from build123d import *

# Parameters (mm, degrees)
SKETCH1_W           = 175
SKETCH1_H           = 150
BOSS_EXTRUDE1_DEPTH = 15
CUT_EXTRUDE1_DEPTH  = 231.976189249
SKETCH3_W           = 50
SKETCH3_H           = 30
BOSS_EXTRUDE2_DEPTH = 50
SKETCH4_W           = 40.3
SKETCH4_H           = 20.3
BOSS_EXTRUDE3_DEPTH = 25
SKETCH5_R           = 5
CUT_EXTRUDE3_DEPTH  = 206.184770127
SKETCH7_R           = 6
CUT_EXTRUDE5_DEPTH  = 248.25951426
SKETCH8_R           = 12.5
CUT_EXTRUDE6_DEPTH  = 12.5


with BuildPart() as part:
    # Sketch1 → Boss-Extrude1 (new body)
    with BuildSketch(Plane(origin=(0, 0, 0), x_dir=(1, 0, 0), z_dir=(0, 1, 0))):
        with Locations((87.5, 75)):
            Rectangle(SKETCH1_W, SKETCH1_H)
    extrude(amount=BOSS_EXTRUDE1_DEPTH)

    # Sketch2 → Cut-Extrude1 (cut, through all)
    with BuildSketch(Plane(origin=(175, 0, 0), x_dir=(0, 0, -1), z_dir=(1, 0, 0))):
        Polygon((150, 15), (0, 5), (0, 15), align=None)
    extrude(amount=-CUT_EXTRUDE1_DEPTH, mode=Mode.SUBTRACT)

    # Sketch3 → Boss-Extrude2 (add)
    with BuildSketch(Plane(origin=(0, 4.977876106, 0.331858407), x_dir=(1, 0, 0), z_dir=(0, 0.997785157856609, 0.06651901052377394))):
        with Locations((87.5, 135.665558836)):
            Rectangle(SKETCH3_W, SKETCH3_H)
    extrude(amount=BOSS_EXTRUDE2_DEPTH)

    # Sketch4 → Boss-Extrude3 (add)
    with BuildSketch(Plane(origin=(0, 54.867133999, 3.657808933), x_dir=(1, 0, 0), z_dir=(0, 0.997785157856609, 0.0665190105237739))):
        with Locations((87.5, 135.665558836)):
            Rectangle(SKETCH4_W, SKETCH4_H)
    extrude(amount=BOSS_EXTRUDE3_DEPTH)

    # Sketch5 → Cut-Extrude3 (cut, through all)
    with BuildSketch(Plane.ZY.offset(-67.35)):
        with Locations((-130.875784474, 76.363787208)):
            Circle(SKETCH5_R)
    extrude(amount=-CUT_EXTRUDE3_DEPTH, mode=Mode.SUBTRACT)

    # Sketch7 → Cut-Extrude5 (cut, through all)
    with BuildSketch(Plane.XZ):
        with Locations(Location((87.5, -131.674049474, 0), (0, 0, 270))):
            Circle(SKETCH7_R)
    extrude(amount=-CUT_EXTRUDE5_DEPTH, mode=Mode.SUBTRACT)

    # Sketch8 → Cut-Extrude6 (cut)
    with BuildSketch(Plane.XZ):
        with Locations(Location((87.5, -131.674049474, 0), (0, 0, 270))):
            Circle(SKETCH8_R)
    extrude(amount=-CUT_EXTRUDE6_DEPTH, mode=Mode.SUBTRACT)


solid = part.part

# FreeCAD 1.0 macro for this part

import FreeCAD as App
import Part
import Sketcher
Q = App.Units.Quantity


def add_polygon(sketch, points):
    """Adds a closed chain of lines whose ends are joined by coincident constraints."""
    first, n = sketch.GeometryCount, len(points)
    for a, b in zip(points, points[1:] + points[:1]):
        sketch.addGeometry(Part.LineSegment(App.Vector(*a, 0), App.Vector(*b, 0)), False)
    for i in range(n):
        sketch.addConstraint(Sketcher.Constraint("Coincident", first + i, 2, first + (i + 1) % n, 1))

doc = App.newDocument("Part")
body = doc.addObject("PartDesign::Body", "Body")

sketch1 = body.newObject("Sketcher::SketchObject", "Sketch")
sketch1.AttachmentSupport = (doc.getObject("XZ_Plane"), [""])
sketch1.MapMode = "FlatFace"
add_polygon(sketch1, [(0, -150), (0, 0), (175, 0), (175, -150)])
sketch1.addConstraint(Sketcher.Constraint("Vertical", 0))
sketch1.addConstraint(Sketcher.Constraint("Horizontal", 1))
sketch1.addConstraint(Sketcher.Constraint("Vertical", 2))
sketch1.addConstraint(Sketcher.Constraint("Horizontal", 3))
sketch1.addConstraint(Sketcher.Constraint("Coincident", 0, 2, -1, 1))
sketch1.addConstraint(Sketcher.Constraint("DistanceX", 1, 1, 1, 2, Q("175 mm")))
sketch1.addConstraint(Sketcher.Constraint("DistanceY", 0, 1, 0, 2, Q("150 mm")))
pad1 = body.newObject("PartDesign::Pad", "Pad")
pad1.Profile = sketch1
pad1.Length = 15
pad1.Reversed = True

sketch2 = body.newObject("Sketcher::SketchObject", "Sketch001")
sketch2.AttachmentSupport = (doc.getObject("YZ_Plane"), [""])
sketch2.MapMode = "FlatFace"
sketch2.AttachmentOffset = App.Placement(App.Vector(0, 0, 175), App.Rotation())
add_polygon(sketch2, [(5, 0), (15, -150), (15, 0)])
sketch2.addConstraint(Sketcher.Constraint("Vertical", 1))
sketch2.addConstraint(Sketcher.Constraint("Horizontal", 2))
sketch2.addConstraint(Sketcher.Constraint("PointOnObject", 1, 2, -1))
sketch2.addConstraint(Sketcher.Constraint("DistanceX", 2, 2, 2, 1, Q("10 mm")))
sketch2.addConstraint(Sketcher.Constraint("DistanceY", 1, 1, 1, 2, Q("150 mm")))
sketch2.addConstraint(Sketcher.Constraint("DistanceX", -1, 1, 0, 2, Q("15 mm")))
pocket1 = body.newObject("PartDesign::Pocket", "Pocket")
pocket1.Profile = sketch2
pocket1.Type = "ThroughAll"

sketch3 = body.newObject("Sketcher::SketchObject", "Sketch002")
sketch3.Placement = App.Placement(App.Vector(0, 4.977876, 0.331858), App.Rotation(App.Vector(1, 0, 0), App.Vector(0, 0.066519011, -0.997785158), App.Vector(0, 0.997785158, 0.066519011), "ZXY"))
add_polygon(sketch3, [(62.5, 150.665559), (62.5, 120.665559), (112.5, 120.665559), (112.5, 150.665559)])
sketch3.addConstraint(Sketcher.Constraint("Vertical", 0))
sketch3.addConstraint(Sketcher.Constraint("Horizontal", 1))
sketch3.addConstraint(Sketcher.Constraint("Vertical", 2))
sketch3.addConstraint(Sketcher.Constraint("Horizontal", 3))
sketch3.addConstraint(Sketcher.Constraint("DistanceX", 1, 1, 1, 2, Q("50 mm")))
sketch3.addConstraint(Sketcher.Constraint("DistanceY", 0, 2, 0, 1, Q("30 mm")))
sketch3.addConstraint(Sketcher.Constraint("DistanceX", -1, 1, 0, 2, Q("62.5 mm")))
sketch3.addConstraint(Sketcher.Constraint("DistanceY", -1, 1, 0, 2, Q("120.665559 mm")))
pad2 = body.newObject("PartDesign::Pad", "Pad001")
pad2.Profile = sketch3
pad2.Length = 50

sketch4 = body.newObject("Sketcher::SketchObject", "Sketch003")
sketch4.Placement = App.Placement(App.Vector(0, 54.867134, 3.657809), App.Rotation(App.Vector(1, 0, 0), App.Vector(0, 0.066519011, -0.997785158), App.Vector(0, 0.997785158, 0.066519011), "ZXY"))
add_polygon(sketch4, [(67.35, 145.815559), (67.35, 125.515559), (107.65, 125.515559), (107.65, 145.815559)])
sketch4.addConstraint(Sketcher.Constraint("Vertical", 0))
sketch4.addConstraint(Sketcher.Constraint("Horizontal", 1))
sketch4.addConstraint(Sketcher.Constraint("Vertical", 2))
sketch4.addConstraint(Sketcher.Constraint("Horizontal", 3))
sketch4.addConstraint(Sketcher.Constraint("DistanceX", 1, 1, 1, 2, Q("40.3 mm")))
sketch4.addConstraint(Sketcher.Constraint("DistanceY", 0, 2, 0, 1, Q("20.3 mm")))
sketch4.addConstraint(Sketcher.Constraint("DistanceX", -1, 1, 0, 2, Q("67.35 mm")))
sketch4.addConstraint(Sketcher.Constraint("DistanceY", -1, 1, 0, 2, Q("125.515559 mm")))
pad3 = body.newObject("PartDesign::Pad", "Pad002")
pad3.Profile = sketch4
pad3.Length = 25

sketch5 = body.newObject("Sketcher::SketchObject", "Sketch004")
sketch5.AttachmentSupport = (doc.getObject("YZ_Plane"), [""])
sketch5.MapMode = "FlatFace"
sketch5.AttachmentOffset = App.Placement(App.Vector(0, 0, 67.35), App.Rotation())
sketch5.addGeometry(Part.Circle(App.Vector(76.363787, -130.875784, 0), App.Vector(0, 0, 1), 5), False)
sketch5.addConstraint(Sketcher.Constraint("Diameter", 0, Q("10 mm")))
sketch5.addConstraint(Sketcher.Constraint("DistanceX", -1, 1, 0, 3, Q("76.363787 mm")))
sketch5.addConstraint(Sketcher.Constraint("DistanceY", 0, 3, -1, 1, Q("130.875784 mm")))
pocket2 = body.newObject("PartDesign::Pocket", "Pocket001")
pocket2.Profile = sketch5
pocket2.Type = "ThroughAll"
pocket2.Reversed = True

sketch6 = body.newObject("Sketcher::SketchObject", "Sketch005")
sketch6.AttachmentSupport = (doc.getObject("XZ_Plane"), [""])
sketch6.MapMode = "FlatFace"
sketch6.addGeometry(Part.Circle(App.Vector(87.5, -131.674049, 0), App.Vector(0, 0, 1), 6), False)
sketch6.addConstraint(Sketcher.Constraint("Diameter", 0, Q("12 mm")))
sketch6.addConstraint(Sketcher.Constraint("DistanceX", -1, 1, 0, 3, Q("87.5 mm")))
sketch6.addConstraint(Sketcher.Constraint("DistanceY", 0, 3, -1, 1, Q("131.674049 mm")))
pocket3 = body.newObject("PartDesign::Pocket", "Pocket002")
pocket3.Profile = sketch6
pocket3.Type = "ThroughAll"

sketch7 = body.newObject("Sketcher::SketchObject", "Sketch006")
sketch7.AttachmentSupport = (doc.getObject("XZ_Plane"), [""])
sketch7.MapMode = "FlatFace"
sketch7.addGeometry(Part.Circle(App.Vector(87.5, -131.674049, 0), App.Vector(0, 0, 1), 12.5), False)
sketch7.addConstraint(Sketcher.Constraint("Diameter", 0, Q("25 mm")))
sketch7.addConstraint(Sketcher.Constraint("DistanceX", -1, 1, 0, 3, Q("87.5 mm")))
sketch7.addConstraint(Sketcher.Constraint("DistanceY", 0, 3, -1, 1, Q("131.674049 mm")))
pocket4 = body.newObject("PartDesign::Pocket", "Pocket003")
pocket4.Profile = sketch7
pocket4.Length = 12.5

doc.recompute()
